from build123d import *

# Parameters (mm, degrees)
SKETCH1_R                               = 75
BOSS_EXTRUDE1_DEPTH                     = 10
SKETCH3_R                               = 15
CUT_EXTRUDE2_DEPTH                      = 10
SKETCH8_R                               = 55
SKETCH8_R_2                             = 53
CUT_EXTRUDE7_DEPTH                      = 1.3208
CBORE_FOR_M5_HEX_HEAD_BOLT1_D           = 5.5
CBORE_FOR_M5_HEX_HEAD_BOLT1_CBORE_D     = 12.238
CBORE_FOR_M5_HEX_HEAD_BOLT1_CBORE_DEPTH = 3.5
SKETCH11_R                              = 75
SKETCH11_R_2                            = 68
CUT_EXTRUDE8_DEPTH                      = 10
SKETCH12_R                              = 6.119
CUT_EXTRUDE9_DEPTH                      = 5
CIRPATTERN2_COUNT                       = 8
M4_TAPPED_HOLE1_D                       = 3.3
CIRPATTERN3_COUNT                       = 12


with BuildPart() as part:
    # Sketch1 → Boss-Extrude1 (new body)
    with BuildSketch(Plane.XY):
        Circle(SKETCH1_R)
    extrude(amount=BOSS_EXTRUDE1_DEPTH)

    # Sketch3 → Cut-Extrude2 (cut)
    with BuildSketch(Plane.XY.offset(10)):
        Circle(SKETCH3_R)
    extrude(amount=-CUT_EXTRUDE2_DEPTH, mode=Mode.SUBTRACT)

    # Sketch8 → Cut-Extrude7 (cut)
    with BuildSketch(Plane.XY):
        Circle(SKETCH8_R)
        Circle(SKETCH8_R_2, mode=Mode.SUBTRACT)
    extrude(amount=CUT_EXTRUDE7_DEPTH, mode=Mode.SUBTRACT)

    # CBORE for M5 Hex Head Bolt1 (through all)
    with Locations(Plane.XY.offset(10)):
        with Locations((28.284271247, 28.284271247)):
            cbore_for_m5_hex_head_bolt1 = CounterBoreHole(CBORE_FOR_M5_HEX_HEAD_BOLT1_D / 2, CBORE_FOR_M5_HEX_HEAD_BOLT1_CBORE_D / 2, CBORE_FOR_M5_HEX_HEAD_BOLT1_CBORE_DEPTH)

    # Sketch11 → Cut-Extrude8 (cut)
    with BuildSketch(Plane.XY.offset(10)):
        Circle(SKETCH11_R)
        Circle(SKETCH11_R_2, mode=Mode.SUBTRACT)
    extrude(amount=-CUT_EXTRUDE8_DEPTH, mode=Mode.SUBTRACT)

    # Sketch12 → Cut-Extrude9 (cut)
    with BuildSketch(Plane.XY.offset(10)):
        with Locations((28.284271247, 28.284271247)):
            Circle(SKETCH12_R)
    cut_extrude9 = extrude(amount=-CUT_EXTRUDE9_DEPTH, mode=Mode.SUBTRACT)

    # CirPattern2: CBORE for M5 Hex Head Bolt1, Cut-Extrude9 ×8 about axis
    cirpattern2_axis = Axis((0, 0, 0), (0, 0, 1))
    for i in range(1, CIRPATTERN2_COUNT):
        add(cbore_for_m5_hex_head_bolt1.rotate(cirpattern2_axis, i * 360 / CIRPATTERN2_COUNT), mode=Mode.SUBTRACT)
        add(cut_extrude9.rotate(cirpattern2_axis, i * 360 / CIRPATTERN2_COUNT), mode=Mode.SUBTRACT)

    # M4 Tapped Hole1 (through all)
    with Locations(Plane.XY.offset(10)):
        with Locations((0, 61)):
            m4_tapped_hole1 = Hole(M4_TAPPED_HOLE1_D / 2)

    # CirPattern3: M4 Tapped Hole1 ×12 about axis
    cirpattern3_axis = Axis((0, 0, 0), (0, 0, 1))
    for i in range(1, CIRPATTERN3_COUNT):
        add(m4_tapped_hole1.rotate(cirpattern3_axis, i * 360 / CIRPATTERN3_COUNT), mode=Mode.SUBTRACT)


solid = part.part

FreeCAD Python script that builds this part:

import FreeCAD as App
import Part
import Sketcher
from FreeCAD import Vector

doc = App.newDocument("Part")
params = doc.addObject("Spreadsheet::Sheet", "Params")
for row, (alias, value) in enumerate([
    ("sketch1_diameter", "150 mm"),
    ("pad1_length", "10 mm"),
    ("sketch2_diameter", "30 mm"),
    ("pocket1_length", "10 mm"),
    ("sketch3_diameter", "110 mm"),
    ("sketch3_diameter2", "106 mm"),
    ("pocket2_length", "1.3208 mm"),
    ("sketch4_diameter", "5.5 mm"),
    ("hole_diameter", "5.5 mm"),
    ("hole_cbore_diameter", "12.238 mm"),
    ("hole_cbore_depth", "3.5 mm"),
    ("sketch5_diameter", "150 mm"),
    ("sketch5_diameter2", "136 mm"),
    ("pocket3_length", "10 mm"),
    ("pocket4_length", "5 mm"),
    ("sketch7_diameter", "3.3 mm"),
    ("hole2_diameter", "3.3 mm"),
], start=1):
    params.set(f"A{row}", alias)
    params.set(f"B{row}", "=" + value)
    params.setAlias(f"B{row}", alias)

body = doc.addObject("PartDesign::Body", "Body")

# Sketch on XY plane
sketch1 = body.newObject("Sketcher::SketchObject", "Sketch")
sketch1.AttachmentSupport = (doc.getObject("XY_Plane"), [""])
sketch1.MapMode = "FlatFace"
sketch1.addGeometry(Part.Circle(Vector(0, 0, 0), Vector(0, 0, 1), 75), False)
sketch1.addConstraint([
    Sketcher.Constraint("Coincident", 0, 3, -1, 1),
    Sketcher.Constraint("Diameter", 0, 150.0),
])
sketch1.setExpression("Constraints[1]", "Params.sketch1_diameter")
pad1 = body.newObject("PartDesign::Pad", "Pad")
pad1.Profile = sketch1
pad1.setExpression("Length", "Params.pad1_length")

# Sketch on XY plane
sketch2 = body.newObject("Sketcher::SketchObject", "Sketch001")
sketch2.AttachmentSupport = (doc.getObject("XY_Plane"), [""])
sketch2.MapMode = "FlatFace"
sketch2.AttachmentOffset = App.Placement(Vector(0, 0, 10), App.Rotation())
sketch2.addGeometry(Part.Circle(Vector(0, 0, 0), Vector(0, 0, 1), 15), False)
sketch2.addConstraint([
    Sketcher.Constraint("Coincident", 0, 3, -1, 1),
    Sketcher.Constraint("Diameter", 0, 30.0),
])
sketch2.setExpression("Constraints[1]", "Params.sketch2_diameter")
pocket1 = body.newObject("PartDesign::Pocket", "Pocket")
pocket1.Profile = sketch2
pocket1.setExpression("Length", "Params.pocket1_length")

# Sketch on XY plane
sketch3 = body.newObject("Sketcher::SketchObject", "Sketch002")
sketch3.AttachmentSupport = (doc.getObject("XY_Plane"), [""])
sketch3.MapMode = "FlatFace"
sketch3.addGeometry([
    Part.Circle(Vector(0, 0, 0), Vector(0, 0, 1), 55),
    Part.Circle(Vector(0, 0, 0), Vector(0, 0, 1), 53),
], False)
sketch3.addConstraint([
    Sketcher.Constraint("Coincident", 0, 3, -1, 1),
    Sketcher.Constraint("Coincident", 1, 3, -1, 1),
    Sketcher.Constraint("Diameter", 0, 110.0),
    Sketcher.Constraint("Diameter", 1, 106.0),
])
sketch3.setExpression("Constraints[2]", "Params.sketch3_diameter")
sketch3.setExpression("Constraints[3]", "Params.sketch3_diameter2")
pocket2 = body.newObject("PartDesign::Pocket", "Pocket001")
pocket2.Profile = sketch3
pocket2.setExpression("Length", "Params.pocket2_length")
pocket2.Reversed = True

# Sketch on XY plane
sketch4 = body.newObject("Sketcher::SketchObject", "Sketch003")
sketch4.AttachmentSupport = (doc.getObject("XY_Plane"), [""])
sketch4.MapMode = "FlatFace"
sketch4.AttachmentOffset = App.Placement(Vector(0, 0, 10), App.Rotation())
sketch4.addGeometry(Part.Circle(Vector(28.3, 28.3, 0), Vector(0, 0, 1), 2.8), False)
sketch4.addConstraint([
    Sketcher.Constraint("Diameter", 0, 5.5),
    Sketcher.Constraint("DistanceX", -1, 1, 0, 3, 28.284271),
    Sketcher.Constraint("DistanceY", -1, 1, 0, 3, 28.284271),
])
sketch4.setExpression("Constraints[0]", "Params.sketch4_diameter")
doc.recompute()
hole = body.newObject("PartDesign::Hole", "Hole")
hole.Profile = sketch4
hole.ThreadType = "None"
hole.setExpression("Diameter", "Params.hole_diameter")
hole.DepthType = "ThroughAll"
hole.HoleCutType = "Counterbore"
hole.setExpression("HoleCutDiameter", "Params.hole_cbore_diameter")
hole.setExpression("HoleCutDepth", "Params.hole_cbore_depth")

# Sketch on XY plane
sketch5 = body.newObject("Sketcher::SketchObject", "Sketch004")
sketch5.AttachmentSupport = (doc.getObject("XY_Plane"), [""])
sketch5.MapMode = "FlatFace"
sketch5.AttachmentOffset = App.Placement(Vector(0, 0, 10), App.Rotation())
sketch5.addGeometry([
    Part.Circle(Vector(0, 0, 0), Vector(0, 0, 1), 75),
    Part.Circle(Vector(0, 0, 0), Vector(0, 0, 1), 68),
], False)
sketch5.addConstraint([
    Sketcher.Constraint("Coincident", 0, 3, -1, 1),
    Sketcher.Constraint("Coincident", 1, 3, -1, 1),
    Sketcher.Constraint("Diameter", 0, 150.0),
    Sketcher.Constraint("Diameter", 1, 136.0),
])
sketch5.setExpression("Constraints[2]", "Params.sketch5_diameter")
sketch5.setExpression("Constraints[3]", "Params.sketch5_diameter2")
pocket3 = body.newObject("PartDesign::Pocket", "Pocket002")
pocket3.Profile = sketch5
pocket3.setExpression("Length", "Params.pocket3_length")

# Sketch on XY plane
sketch6 = body.newObject("Sketcher::SketchObject", "Sketch005")
sketch6.AttachmentSupport = (doc.getObject("XY_Plane"), [""])
sketch6.MapMode = "FlatFace"
sketch6.AttachmentOffset = App.Placement(Vector(0, 0, 10), App.Rotation())
sketch6.addGeometry(Part.Circle(Vector(28, 28, 0), Vector(0, 0, 1), 6), False)
sketch6.addConstraint([
    Sketcher.Constraint("Diameter", 0, 12.238),
    Sketcher.Constraint("DistanceX", -1, 1, 0, 3, 28.284271),
    Sketcher.Constraint("DistanceY", -1, 1, 0, 3, 28.284271),
])
pocket4 = body.newObject("PartDesign::Pocket", "Pocket003")
pocket4.Profile = sketch6
pocket4.setExpression("Length", "Params.pocket4_length")
doc.recompute()

polarpattern = body.newObject("PartDesign::PolarPattern", "PolarPattern")
polarpattern.Originals = [hole, pocket4]
polarpattern.Axis = (doc.getObject("Z_Axis"), [""])
polarpattern.Angle = 360
polarpattern.Occurrences = 8
body.Tip = polarpattern

# Sketch on XY plane
sketch7 = body.newObject("Sketcher::SketchObject", "Sketch006")
sketch7.AttachmentSupport = (doc.getObject("XY_Plane"), [""])
sketch7.MapMode = "FlatFace"
sketch7.AttachmentOffset = App.Placement(Vector(0, 0, 10), App.Rotation())
sketch7.addGeometry(Part.Circle(Vector(0, 61, 0), Vector(0, 0, 1), 1.6), False)
sketch7.addConstraint([
    Sketcher.Constraint("PointOnObject", 0, 3, -2),
    Sketcher.Constraint("Diameter", 0, 3.3),
    Sketcher.Constraint("DistanceY", -1, 1, 0, 3, 61.0),
])
sketch7.setExpression("Constraints[1]", "Params.sketch7_diameter")
doc.recompute()
hole2 = body.newObject("PartDesign::Hole", "Hole001")
hole2.Profile = sketch7
hole2.ThreadType = "None"
hole2.setExpression("Diameter", "Params.hole2_diameter")
hole2.DepthType = "ThroughAll"
doc.recompute()

polarpattern2 = body.newObject("PartDesign::PolarPattern", "PolarPattern001")
polarpattern2.Originals = [hole2]
polarpattern2.Axis = (doc.getObject("Z_Axis"), [""])
polarpattern2.Angle = 360
polarpattern2.Occurrences = 12
body.Tip = polarpattern2

doc.recompute()
